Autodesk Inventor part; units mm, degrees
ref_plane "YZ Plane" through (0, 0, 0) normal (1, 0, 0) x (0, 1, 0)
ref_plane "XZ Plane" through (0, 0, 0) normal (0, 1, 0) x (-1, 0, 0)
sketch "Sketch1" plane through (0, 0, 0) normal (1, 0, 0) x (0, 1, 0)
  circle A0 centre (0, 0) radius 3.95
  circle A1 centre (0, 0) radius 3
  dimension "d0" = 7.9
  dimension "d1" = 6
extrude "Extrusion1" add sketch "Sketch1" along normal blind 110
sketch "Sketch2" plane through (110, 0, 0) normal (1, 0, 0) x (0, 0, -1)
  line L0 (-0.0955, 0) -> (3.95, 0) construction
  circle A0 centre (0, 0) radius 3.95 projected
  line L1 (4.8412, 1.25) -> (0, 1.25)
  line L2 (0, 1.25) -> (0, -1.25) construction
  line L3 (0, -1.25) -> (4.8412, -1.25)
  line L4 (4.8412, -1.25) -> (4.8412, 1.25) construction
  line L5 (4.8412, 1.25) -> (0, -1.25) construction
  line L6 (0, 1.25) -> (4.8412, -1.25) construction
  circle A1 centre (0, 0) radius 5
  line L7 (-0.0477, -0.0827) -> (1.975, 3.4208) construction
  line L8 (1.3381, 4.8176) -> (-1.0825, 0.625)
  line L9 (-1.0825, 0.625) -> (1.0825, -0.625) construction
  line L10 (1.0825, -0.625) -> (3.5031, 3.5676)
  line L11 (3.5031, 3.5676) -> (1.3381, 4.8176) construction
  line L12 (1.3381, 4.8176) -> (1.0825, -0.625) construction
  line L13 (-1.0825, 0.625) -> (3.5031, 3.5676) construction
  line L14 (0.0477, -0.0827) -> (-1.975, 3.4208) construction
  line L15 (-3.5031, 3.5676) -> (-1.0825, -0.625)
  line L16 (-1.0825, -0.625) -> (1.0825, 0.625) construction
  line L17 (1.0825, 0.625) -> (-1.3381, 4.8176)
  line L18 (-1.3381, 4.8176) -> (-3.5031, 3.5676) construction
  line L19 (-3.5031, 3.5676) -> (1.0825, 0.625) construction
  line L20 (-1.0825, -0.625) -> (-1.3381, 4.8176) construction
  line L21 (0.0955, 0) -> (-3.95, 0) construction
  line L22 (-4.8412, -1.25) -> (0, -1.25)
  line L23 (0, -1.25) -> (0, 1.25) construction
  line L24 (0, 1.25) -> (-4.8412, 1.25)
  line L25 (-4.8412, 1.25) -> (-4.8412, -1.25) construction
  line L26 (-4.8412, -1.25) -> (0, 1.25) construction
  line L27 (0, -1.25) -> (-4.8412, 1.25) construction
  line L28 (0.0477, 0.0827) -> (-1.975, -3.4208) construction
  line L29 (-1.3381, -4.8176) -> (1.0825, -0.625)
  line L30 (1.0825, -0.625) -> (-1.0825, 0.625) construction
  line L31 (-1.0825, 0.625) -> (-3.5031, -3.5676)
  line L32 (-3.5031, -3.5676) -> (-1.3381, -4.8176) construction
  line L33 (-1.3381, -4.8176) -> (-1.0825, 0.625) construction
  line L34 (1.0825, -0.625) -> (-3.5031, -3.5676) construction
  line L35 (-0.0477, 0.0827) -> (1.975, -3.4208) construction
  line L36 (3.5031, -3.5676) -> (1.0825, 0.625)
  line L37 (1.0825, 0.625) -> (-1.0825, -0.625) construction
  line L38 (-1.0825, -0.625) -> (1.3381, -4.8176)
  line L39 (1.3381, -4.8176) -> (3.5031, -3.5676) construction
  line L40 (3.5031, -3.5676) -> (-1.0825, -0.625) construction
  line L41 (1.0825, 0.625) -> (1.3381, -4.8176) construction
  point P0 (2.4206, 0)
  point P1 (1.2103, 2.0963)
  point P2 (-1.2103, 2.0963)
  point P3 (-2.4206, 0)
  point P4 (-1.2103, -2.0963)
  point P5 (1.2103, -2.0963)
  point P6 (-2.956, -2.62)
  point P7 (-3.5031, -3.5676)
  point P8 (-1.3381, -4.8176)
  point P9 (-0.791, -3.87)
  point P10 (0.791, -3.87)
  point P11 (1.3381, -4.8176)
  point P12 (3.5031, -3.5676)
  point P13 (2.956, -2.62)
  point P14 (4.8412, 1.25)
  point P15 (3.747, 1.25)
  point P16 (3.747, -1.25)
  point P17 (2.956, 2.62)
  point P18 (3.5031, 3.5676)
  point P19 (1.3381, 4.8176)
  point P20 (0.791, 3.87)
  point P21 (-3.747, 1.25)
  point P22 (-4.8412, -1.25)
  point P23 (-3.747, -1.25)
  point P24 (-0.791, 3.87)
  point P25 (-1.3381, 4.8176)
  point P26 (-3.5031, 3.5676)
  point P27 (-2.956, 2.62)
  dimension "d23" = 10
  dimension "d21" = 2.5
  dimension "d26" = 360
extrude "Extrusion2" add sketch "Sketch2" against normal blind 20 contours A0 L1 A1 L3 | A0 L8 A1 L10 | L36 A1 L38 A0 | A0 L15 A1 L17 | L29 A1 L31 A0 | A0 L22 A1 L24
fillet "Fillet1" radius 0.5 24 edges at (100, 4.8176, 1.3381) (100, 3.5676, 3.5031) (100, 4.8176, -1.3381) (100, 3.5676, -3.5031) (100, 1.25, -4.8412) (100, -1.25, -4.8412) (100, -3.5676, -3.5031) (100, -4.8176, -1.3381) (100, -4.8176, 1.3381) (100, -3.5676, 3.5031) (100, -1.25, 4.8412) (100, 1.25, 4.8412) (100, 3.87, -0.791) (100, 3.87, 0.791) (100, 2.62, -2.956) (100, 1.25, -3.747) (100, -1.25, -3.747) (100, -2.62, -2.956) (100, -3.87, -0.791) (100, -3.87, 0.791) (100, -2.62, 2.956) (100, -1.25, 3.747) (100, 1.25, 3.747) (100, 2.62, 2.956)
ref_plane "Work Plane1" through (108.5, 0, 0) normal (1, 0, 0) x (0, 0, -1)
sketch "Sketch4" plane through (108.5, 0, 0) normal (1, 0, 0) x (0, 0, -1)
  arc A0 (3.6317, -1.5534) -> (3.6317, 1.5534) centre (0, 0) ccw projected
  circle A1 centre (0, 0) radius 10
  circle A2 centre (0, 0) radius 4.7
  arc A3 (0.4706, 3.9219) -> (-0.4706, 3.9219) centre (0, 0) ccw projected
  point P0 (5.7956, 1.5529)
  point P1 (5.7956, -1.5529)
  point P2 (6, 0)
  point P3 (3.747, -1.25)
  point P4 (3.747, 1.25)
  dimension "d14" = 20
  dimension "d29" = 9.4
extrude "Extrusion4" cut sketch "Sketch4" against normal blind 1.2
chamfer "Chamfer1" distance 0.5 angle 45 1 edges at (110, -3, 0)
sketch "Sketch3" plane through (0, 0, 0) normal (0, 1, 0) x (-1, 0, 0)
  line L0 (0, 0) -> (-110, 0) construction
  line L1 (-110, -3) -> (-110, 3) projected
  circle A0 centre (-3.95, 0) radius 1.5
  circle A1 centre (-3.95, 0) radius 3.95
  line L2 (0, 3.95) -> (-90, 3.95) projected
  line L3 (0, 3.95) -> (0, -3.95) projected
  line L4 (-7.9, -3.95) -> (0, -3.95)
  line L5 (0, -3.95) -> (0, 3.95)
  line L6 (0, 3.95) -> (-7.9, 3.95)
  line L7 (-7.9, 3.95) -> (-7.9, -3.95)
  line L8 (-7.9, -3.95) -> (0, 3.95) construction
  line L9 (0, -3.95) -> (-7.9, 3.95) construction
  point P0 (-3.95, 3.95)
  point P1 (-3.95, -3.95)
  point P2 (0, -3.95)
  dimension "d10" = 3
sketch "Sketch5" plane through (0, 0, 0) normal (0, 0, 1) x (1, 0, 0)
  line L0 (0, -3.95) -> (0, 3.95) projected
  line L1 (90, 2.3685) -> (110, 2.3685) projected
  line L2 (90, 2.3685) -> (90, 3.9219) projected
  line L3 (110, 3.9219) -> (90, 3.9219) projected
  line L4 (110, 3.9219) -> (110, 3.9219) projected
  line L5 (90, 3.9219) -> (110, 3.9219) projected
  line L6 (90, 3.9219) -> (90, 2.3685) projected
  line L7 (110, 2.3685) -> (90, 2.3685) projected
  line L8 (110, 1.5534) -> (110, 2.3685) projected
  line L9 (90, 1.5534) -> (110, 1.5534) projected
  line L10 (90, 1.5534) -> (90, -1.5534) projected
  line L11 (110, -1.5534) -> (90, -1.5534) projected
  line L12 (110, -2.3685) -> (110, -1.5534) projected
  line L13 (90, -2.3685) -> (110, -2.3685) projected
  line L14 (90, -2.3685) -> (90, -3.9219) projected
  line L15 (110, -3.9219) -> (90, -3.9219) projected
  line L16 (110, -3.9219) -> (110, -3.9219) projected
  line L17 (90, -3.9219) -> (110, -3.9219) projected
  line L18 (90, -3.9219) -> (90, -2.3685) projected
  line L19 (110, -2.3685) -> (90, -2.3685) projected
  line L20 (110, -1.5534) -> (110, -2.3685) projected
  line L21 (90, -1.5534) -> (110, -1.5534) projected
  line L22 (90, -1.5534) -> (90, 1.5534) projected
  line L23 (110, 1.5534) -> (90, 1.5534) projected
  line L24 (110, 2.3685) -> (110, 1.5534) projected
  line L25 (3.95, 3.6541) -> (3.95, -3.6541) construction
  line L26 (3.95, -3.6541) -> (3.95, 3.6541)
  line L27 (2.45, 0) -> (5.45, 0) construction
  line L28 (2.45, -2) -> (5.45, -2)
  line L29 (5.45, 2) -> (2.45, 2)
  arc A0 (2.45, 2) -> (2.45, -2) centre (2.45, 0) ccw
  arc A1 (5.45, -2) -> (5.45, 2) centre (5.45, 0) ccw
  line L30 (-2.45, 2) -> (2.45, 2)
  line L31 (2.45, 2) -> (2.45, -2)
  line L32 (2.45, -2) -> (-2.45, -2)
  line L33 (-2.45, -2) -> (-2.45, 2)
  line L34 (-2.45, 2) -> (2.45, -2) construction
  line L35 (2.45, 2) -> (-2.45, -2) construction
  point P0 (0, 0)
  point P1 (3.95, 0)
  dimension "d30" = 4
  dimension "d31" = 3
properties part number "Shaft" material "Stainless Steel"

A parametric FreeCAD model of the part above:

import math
import FreeCAD as App
import Part
import Sketcher

V = App.Vector
Q = App.Units.Quantity


def edges_at(feature, points):
    """Names of the edges that pass closest to the given points."""
    edges = feature.Shape.Edges
    near = lambda p: min(range(len(edges)), key=lambda i: edges[i].distToShape(Part.Vertex(*p))[0])
    return sorted({f"Edge{near(p) + 1}" for p in points})

doc = App.newDocument("Part")
body = doc.addObject("PartDesign::Body", "Body")

# Sketch on YZ plane
sketch1 = body.newObject("Sketcher::SketchObject", "Sketch")
sketch1.AttachmentSupport = (doc.getObject("YZ_Plane"), [""])
sketch1.MapMode = "FlatFace"
sketch1.addGeometry(Part.Circle(V(0, 0, 0), V(0, 0, 1), 3.95), False)
sketch1.addGeometry(Part.Circle(V(0, 0, 0), V(0, 0, 1), 3), False)
sketch1.addConstraint(Sketcher.Constraint("Coincident", 0, 3, -1, 1))
sketch1.addConstraint(Sketcher.Constraint("Coincident", 1, 3, -1, 1))
sketch1.addConstraint(Sketcher.Constraint("Diameter", 1, 6.0))
sketch1.addConstraint(Sketcher.Constraint("Diameter", 0, 7.9))
pad1 = body.newObject("PartDesign::Pad", "Pad")
pad1.Profile = sketch1
pad1.Length = 110

# Sketch on YZ plane
sketch2 = body.newObject("Sketcher::SketchObject", "Sketch001")
sketch2.AttachmentSupport = (doc.getObject("YZ_Plane"), [""])
sketch2.MapMode = "FlatFace"
sketch2.AttachmentOffset = App.Placement(V(0, 0, 110), App.Rotation())
sketch2.addGeometry(Part.ArcOfCircle(Part.Circle(V(0, 0, 0), V(0, 0, 1), 3.95), math.radians(-108.448715), math.radians(-71.551285)), False)
sketch2.addGeometry(Part.LineSegment(V(-1.25, -3.746999, 0), V(-1.25, -4.8412, 0)), False)
sketch2.addGeometry(Part.ArcOfCircle(Part.Circle(V(0, 0, 0), V(0, 0, 1), 5), math.radians(-104.477596), math.radians(-75.522404)), False)
sketch2.addGeometry(Part.LineSegment(V(1.25, -4.8412, 0), V(1.25, -3.746999, 0)), False)
sketch2.addGeometry(Part.ArcOfCircle(Part.Circle(V(0, 0, 0), V(0, 0, 1), 3.95), math.radians(-48.448308), math.radians(-11.551718)), False)
sketch2.addGeometry(Part.LineSegment(V(2.620017, -2.956013, 0), V(3.5676, -3.5031, 0)), False)
sketch2.addGeometry(Part.ArcOfCircle(Part.Circle(V(0, 0, 0), V(0, 0, 1), 5), math.radians(-44.477354), math.radians(-15.522762)), False)
sketch2.addGeometry(Part.LineSegment(V(4.8176, -1.3381, 0), V(3.86999, -0.790997, 0)), False)
sketch2.addGeometry(Part.LineSegment(V(-3.5676, -3.5031, 0), V(-2.620017, -2.956013, 0)), False)
sketch2.addGeometry(Part.ArcOfCircle(Part.Circle(V(0, 0, 0), V(0, 0, 1), 3.95), math.radians(-168.448282), math.radians(-131.551692)), False)
sketch2.addGeometry(Part.LineSegment(V(-3.86999, -0.790997, 0), V(-4.8176, -1.3381, 0)), False)
sketch2.addGeometry(Part.ArcOfCircle(Part.Circle(V(0, 0, 0), V(0, 0, 1), 5), math.radians(-164.477238), math.radians(-135.522646)), False)
sketch2.addGeometry(Part.ArcOfCircle(Part.Circle(V(0, 0, 0), V(0, 0, 1), 3.95), math.radians(11.551718), math.radians(48.448308)), False)
sketch2.addGeometry(Part.LineSegment(V(3.86999, 0.790997, 0), V(4.8176, 1.3381, 0)), False)
sketch2.addGeometry(Part.ArcOfCircle(Part.Circle(V(0, 0, 0), V(0, 0, 1), 5), math.radians(15.522762), math.radians(44.477354)), False)
sketch2.addGeometry(Part.LineSegment(V(3.5676, 3.5031, 0), V(2.620017, 2.956013, 0)), False)
sketch2.addGeometry(Part.LineSegment(V(-4.8176, 1.3381, 0), V(-3.86999, 0.790997, 0)), False)
sketch2.addGeometry(Part.ArcOfCircle(Part.Circle(V(0, 0, 0), V(0, 0, 1), 3.95), math.radians(131.551692), math.radians(168.448282)), False)
sketch2.addGeometry(Part.LineSegment(V(-2.620017, 2.956013, 0), V(-3.5676, 3.5031, 0)), False)
sketch2.addGeometry(Part.ArcOfCircle(Part.Circle(V(0, 0, 0), V(0, 0, 1), 5), math.radians(135.522646), math.radians(164.477238)), False)
sketch2.addGeometry(Part.ArcOfCircle(Part.Circle(V(0, 0, 0), V(0, 0, 1), 3.95), math.radians(71.551285), math.radians(108.448715)), False)
sketch2.addGeometry(Part.LineSegment(V(1.25, 3.746999, 0), V(1.25, 4.8412, 0)), False)
sketch2.addGeometry(Part.ArcOfCircle(Part.Circle(V(0, 0, 0), V(0, 0, 1), 5), math.radians(75.522404), math.radians(104.477596)), False)
sketch2.addGeometry(Part.LineSegment(V(-1.25, 4.8412, 0), V(-1.25, 3.746999, 0)), False)
sketch2.addConstraint(Sketcher.Constraint("Coincident", 0, 1, 1, 1))
sketch2.addConstraint(Sketcher.Constraint("Coincident", 1, 2, 2, 1))
sketch2.addConstraint(Sketcher.Constraint("Coincident", 2, 2, 3, 1))
sketch2.addConstraint(Sketcher.Constraint("Coincident", 3, 2, 0, 2))
sketch2.addConstraint(Sketcher.Constraint("Coincident", 4, 1, 5, 1))
sketch2.addConstraint(Sketcher.Constraint("Coincident", 5, 2, 6, 1))
sketch2.addConstraint(Sketcher.Constraint("Coincident", 6, 2, 7, 1))
sketch2.addConstraint(Sketcher.Constraint("Coincident", 7, 2, 4, 2))
sketch2.addConstraint(Sketcher.Constraint("Coincident", 8, 2, 9, 2))
sketch2.addConstraint(Sketcher.Constraint("Coincident", 9, 1, 10, 1))
sketch2.addConstraint(Sketcher.Constraint("Coincident", 10, 2, 11, 1))
sketch2.addConstraint(Sketcher.Constraint("Coincident", 11, 2, 8, 1))
sketch2.addConstraint(Sketcher.Constraint("Coincident", 12, 1, 13, 1))
sketch2.addConstraint(Sketcher.Constraint("Coincident", 13, 2, 14, 1))
sketch2.addConstraint(Sketcher.Constraint("Coincident", 14, 2, 15, 1))
sketch2.addConstraint(Sketcher.Constraint("Coincident", 15, 2, 12, 2))
sketch2.addConstraint(Sketcher.Constraint("Coincident", 16, 2, 17, 2))
sketch2.addConstraint(Sketcher.Constraint("Coincident", 17, 1, 18, 1))
sketch2.addConstraint(Sketcher.Constraint("Coincident", 18, 2, 19, 1))
sketch2.addConstraint(Sketcher.Constraint("Coincident", 19, 2, 16, 1))
sketch2.addConstraint(Sketcher.Constraint("Coincident", 20, 1, 21, 1))
sketch2.addConstraint(Sketcher.Constraint("Coincident", 21, 2, 22, 1))
sketch2.addConstraint(Sketcher.Constraint("Coincident", 22, 2, 23, 1))
sketch2.addConstraint(Sketcher.Constraint("Coincident", 23, 2, 20, 2))
sketch2.addConstraint(Sketcher.Constraint("Vertical", 1))
sketch2.addConstraint(Sketcher.Constraint("Vertical", 3))
sketch2.addConstraint(Sketcher.Constraint("Vertical", 21))
sketch2.addConstraint(Sketcher.Constraint("Vertical", 23))
sketch2.addConstraint(Sketcher.Constraint("Coincident", 0, 3, -1, 1))
sketch2.addConstraint(Sketcher.Constraint("Coincident", 2, 3, -1, 1))
sketch2.addConstraint(Sketcher.Constraint("Coincident", 4, 3, -1, 1))
sketch2.addConstraint(Sketcher.Constraint("Coincident", 6, 3, -1, 1))
sketch2.addConstraint(Sketcher.Constraint("Coincident", 9, 3, -1, 1))
sketch2.addConstraint(Sketcher.Constraint("Coincident", 11, 3, -1, 1))
sketch2.addConstraint(Sketcher.Constraint("Coincident", 12, 3, -1, 1))
sketch2.addConstraint(Sketcher.Constraint("Coincident", 14, 3, -1, 1))
sketch2.addConstraint(Sketcher.Constraint("Coincident", 17, 3, -1, 1))
sketch2.addConstraint(Sketcher.Constraint("Coincident", 19, 3, -1, 1))
sketch2.addConstraint(Sketcher.Constraint("Coincident", 20, 3, -1, 1))
sketch2.addConstraint(Sketcher.Constraint("Coincident", 22, 3, -1, 1))
sketch2.addConstraint(Sketcher.Constraint("Equal", 0, 4))
sketch2.addConstraint(Sketcher.Constraint("Equal", 2, 6))
sketch2.addConstraint(Sketcher.Constraint("Equal", 4, 9))
sketch2.addConstraint(Sketcher.Constraint("Equal", 6, 11))
sketch2.addConstraint(Sketcher.Constraint("Equal", 9, 12))
sketch2.addConstraint(Sketcher.Constraint("Equal", 11, 14))
sketch2.addConstraint(Sketcher.Constraint("Equal", 12, 17))
sketch2.addConstraint(Sketcher.Constraint("Equal", 14, 19))
sketch2.addConstraint(Sketcher.Constraint("Equal", 17, 20))
sketch2.addConstraint(Sketcher.Constraint("Equal", 19, 22))
sketch2.addConstraint(Sketcher.Constraint("Parallel", 5, 7))
sketch2.addConstraint(Sketcher.Constraint("Parallel", 8, 10))
sketch2.addConstraint(Sketcher.Constraint("Parallel", 10, 13))
sketch2.addConstraint(Sketcher.Constraint("Parallel", 13, 15))
sketch2.addConstraint(Sketcher.Constraint("Parallel", 7, 16))
sketch2.addConstraint(Sketcher.Constraint("Parallel", 16, 18))
sketch2.addConstraint(Sketcher.Constraint("Horizontal", 1, 2, 2, 2))
sketch2.addConstraint(Sketcher.Constraint("Horizontal", 4, 1, 8, 2))
sketch2.addConstraint(Sketcher.Constraint("Horizontal", 7, 2, 9, 1))
sketch2.addConstraint(Sketcher.Constraint("Horizontal", 6, 2, 10, 2))
sketch2.addConstraint(Sketcher.Constraint("Horizontal", 12, 1, 16, 2))
sketch2.addConstraint(Sketcher.Constraint("Horizontal", 15, 2, 17, 1))
sketch2.addConstraint(Sketcher.Constraint("Horizontal", 21, 2, 22, 2))
sketch2.addConstraint(Sketcher.Constraint("Vertical", 7, 2, 12, 1))
sketch2.addConstraint(Sketcher.Constraint("Vertical", 5, 2, 14, 2))
sketch2.addConstraint(Sketcher.Constraint("Vertical", 3, 2, 20, 1))
sketch2.addConstraint(Sketcher.Constraint("Equal", 5, 7))
sketch2.addConstraint(Sketcher.Constraint("Radius", 2, 5.0))
sketch2.addConstraint(Sketcher.Constraint("DistanceX", 1, 2, 2, 2, 2.5))
sketch2.addConstraint(Sketcher.Constraint("Angle", 5, Q("-30 deg")))
sketch2.addConstraint(Sketcher.Constraint("Radius", 0, 3.95))
sketch2.addConstraint(Sketcher.Constraint("DistanceX", -1, 1, 4, 1, 2.62))
pad2 = body.newObject("PartDesign::Pad", "Pad001")
pad2.Profile = sketch2
pad2.Length = 20
pad2.Reversed = True
doc.recompute()

fillet = body.newObject("PartDesign::Fillet", "Fillet")
fillet.Base = (pad2, edges_at(pad2, [
    (100, 4.818, 1.338),
    (100, 3.568, 3.503),
    (100, 4.818, -1.338),
    (100, 3.568, -3.503),
    (100, 1.25, -4.841),
    (100, -1.25, -4.841),
    (100, -3.568, -3.503),
    (100, -4.818, -1.338),
    (100, -4.818, 1.338),
    (100, -3.568, 3.503),
    (100, -1.25, 4.841),
    (100, 1.25, 4.841),
    (100, 3.87, -0.791),
    (100, 3.87, 0.791),
    (100, 2.62, -2.956),
    (100, 1.25, -3.747),
    (100, -1.25, -3.747),
    (100, -2.62, -2.956),
    (100, -3.87, -0.791),
    (100, -3.87, 0.791),
    (100, -2.62, 2.956),
    (100, -1.25, 3.747),
    (100, 1.25, 3.747),
    (100, 2.62, 2.956),
]))
fillet.Radius = 0.5

# Sketch on YZ plane
sketch3 = body.newObject("Sketcher::SketchObject", "Sketch002")
sketch3.AttachmentSupport = (doc.getObject("YZ_Plane"), [""])
sketch3.MapMode = "FlatFace"
sketch3.AttachmentOffset = App.Placement(V(0, 0, 108.5), App.Rotation())
sketch3.addGeometry(Part.Circle(V(0, 0, 0), V(0, 0, 1), 10), False)
sketch3.addGeometry(Part.Circle(V(0, 0, 0), V(0, 0, 1), 4.7), False)
sketch3.addConstraint(Sketcher.Constraint("Coincident", 0, 3, -1, 1))
sketch3.addConstraint(Sketcher.Constraint("Coincident", 1, 3, -1, 1))
sketch3.addConstraint(Sketcher.Constraint("Diameter", 0, 20.0))
sketch3.addConstraint(Sketcher.Constraint("Diameter", 1, 9.4))
pocket1 = body.newObject("PartDesign::Pocket", "Pocket")
pocket1.Profile = sketch3
pocket1.Length = 1.2
doc.recompute()

chamfer = body.newObject("PartDesign::Chamfer", "Chamfer")
chamfer.Base = (pocket1, edges_at(pocket1, [(110, -3, 0)]))
chamfer.Size = 0.5

doc.recompute()
